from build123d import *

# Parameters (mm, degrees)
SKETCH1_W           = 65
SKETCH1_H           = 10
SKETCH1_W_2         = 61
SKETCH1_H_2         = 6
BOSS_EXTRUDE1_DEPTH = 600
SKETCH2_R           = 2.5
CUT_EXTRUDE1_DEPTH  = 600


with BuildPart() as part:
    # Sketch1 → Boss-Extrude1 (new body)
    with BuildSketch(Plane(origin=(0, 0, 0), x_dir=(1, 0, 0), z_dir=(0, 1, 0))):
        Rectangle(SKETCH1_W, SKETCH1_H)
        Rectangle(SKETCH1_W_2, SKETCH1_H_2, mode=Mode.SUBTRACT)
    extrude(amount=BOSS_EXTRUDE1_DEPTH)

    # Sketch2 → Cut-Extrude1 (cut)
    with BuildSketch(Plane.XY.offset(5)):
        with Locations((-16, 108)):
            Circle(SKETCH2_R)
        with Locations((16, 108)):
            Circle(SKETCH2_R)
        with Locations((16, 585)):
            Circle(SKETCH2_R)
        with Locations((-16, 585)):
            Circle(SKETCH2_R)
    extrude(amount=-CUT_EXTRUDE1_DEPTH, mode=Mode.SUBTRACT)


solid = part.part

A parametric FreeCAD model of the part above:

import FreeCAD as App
import Part
import Sketcher

V = App.Vector
Q = App.Units.Quantity


def add_polygon(sketch, points):
    """Adds a closed chain of lines whose ends are joined by coincident constraints."""
    first, n = sketch.GeometryCount, len(points)
    for a, b in zip(points, points[1:] + points[:1]):
        sketch.addGeometry(Part.LineSegment(App.Vector(*a, 0), App.Vector(*b, 0)), False)
    for i in range(n):
        sketch.addConstraint(Sketcher.Constraint("Coincident", first + i, 2, first + (i + 1) % n, 1))

doc = App.newDocument("Part")
params = doc.addObject("Spreadsheet::Sheet", "Params")
for row, (alias, value) in enumerate([
    ("sketch1_width", "65 mm"),
    ("sketch1_width2", "61 mm"),
    ("sketch1_height", "10 mm"),
    ("sketch1_height2", "6 mm"),
    ("pad1_length", "600 mm"),
    ("sketch2_diameter", "5 mm"),
    ("pocket1_length", "600 mm"),
], start=1):
    params.set(f"A{row}", alias)
    params.set(f"B{row}", "=" + value)
    params.setAlias(f"B{row}", alias)

body = doc.addObject("PartDesign::Body", "Body")

sketch1 = body.newObject("Sketcher::SketchObject", "Sketch")
sketch1.AttachmentSupport = (doc.getObject("XZ_Plane"), [""])
sketch1.MapMode = "FlatFace"
add_polygon(sketch1, [(-32, -5), (-32, 5), (32, 5), (32, -5)])
add_polygon(sketch1, [(30, 3), (-30, 3), (-30, -3), (30, -3)])
sketch1.addConstraint([
    Sketcher.Constraint("Vertical", 0),
    Sketcher.Constraint("Horizontal", 1),
    Sketcher.Constraint("Vertical", 2),
    Sketcher.Constraint("Horizontal", 3),
    Sketcher.Constraint("Horizontal", 4),
    Sketcher.Constraint("Vertical", 5),
    Sketcher.Constraint("Horizontal", 6),
    Sketcher.Constraint("Vertical", 7),
    Sketcher.Constraint("Symmetric", 0, 2, 2, 2, -1, 1),
    Sketcher.Constraint("Symmetric", 4, 2, 6, 2, -1, 1),
    Sketcher.Constraint("DistanceX", 1, 1, 1, 2, Q("65 mm")),
    Sketcher.Constraint("DistanceX", 4, 2, 4, 1, Q("61 mm")),
    Sketcher.Constraint("DistanceY", 0, 1, 0, 2, Q("10 mm")),
    Sketcher.Constraint("DistanceY", 5, 2, 5, 1, Q("6 mm")),
])
sketch1.setExpression("Constraints[18]", "Params.sketch1_width")
sketch1.setExpression("Constraints[19]", "Params.sketch1_width2")
sketch1.setExpression("Constraints[20]", "Params.sketch1_height")
sketch1.setExpression("Constraints[21]", "Params.sketch1_height2")
pad1 = body.newObject("PartDesign::Pad", "Pad")
pad1.Profile = sketch1
pad1.setExpression("Length", "Params.pad1_length")
pad1.Reversed = True

sketch2 = body.newObject("Sketcher::SketchObject", "Sketch001")
sketch2.AttachmentSupport = (doc.getObject("XY_Plane"), [""])
sketch2.MapMode = "FlatFace"
sketch2.AttachmentOffset = App.Placement(V(0, 0, 5), App.Rotation())
sketch2.addGeometry([
    Part.Circle(V(-16, 108, 0), V(0, 0, 1), 2.5),
    Part.Circle(V(16, 108, 0), V(0, 0, 1), 2.5),
    Part.Circle(V(16, 585, 0), V(0, 0, 1), 2.5),
    Part.Circle(V(-16, 585, 0), V(0, 0, 1), 2.5),
], False)
sketch2.addConstraint([
    Sketcher.Constraint("Equal", 0, 1),
    Sketcher.Constraint("Equal", 1, 2),
    Sketcher.Constraint("Equal", 2, 3),
    Sketcher.Constraint("Symmetric", 0, 3, 1, 3, -2),
    Sketcher.Constraint("Symmetric", 2, 3, 3, 3, -2),
    Sketcher.Constraint("Vertical", 1, 3, 2, 3),
    Sketcher.Constraint("Diameter", 0, Q("5 mm")),
    Sketcher.Constraint("DistanceX", 0, 3, -1, 1, Q("16 mm")),
    Sketcher.Constraint("DistanceY", -1, 1, 0, 3, Q("108 mm")),
    Sketcher.Constraint("DistanceY", -1, 1, 2, 3, Q("585 mm")),
])
sketch2.setExpression("Constraints[6]", "Params.sketch2_diameter")
pocket1 = body.newObject("PartDesign::Pocket", "Pocket")
pocket1.Profile = sketch2
pocket1.setExpression("Length", "Params.pocket1_length")

doc.recompute()
